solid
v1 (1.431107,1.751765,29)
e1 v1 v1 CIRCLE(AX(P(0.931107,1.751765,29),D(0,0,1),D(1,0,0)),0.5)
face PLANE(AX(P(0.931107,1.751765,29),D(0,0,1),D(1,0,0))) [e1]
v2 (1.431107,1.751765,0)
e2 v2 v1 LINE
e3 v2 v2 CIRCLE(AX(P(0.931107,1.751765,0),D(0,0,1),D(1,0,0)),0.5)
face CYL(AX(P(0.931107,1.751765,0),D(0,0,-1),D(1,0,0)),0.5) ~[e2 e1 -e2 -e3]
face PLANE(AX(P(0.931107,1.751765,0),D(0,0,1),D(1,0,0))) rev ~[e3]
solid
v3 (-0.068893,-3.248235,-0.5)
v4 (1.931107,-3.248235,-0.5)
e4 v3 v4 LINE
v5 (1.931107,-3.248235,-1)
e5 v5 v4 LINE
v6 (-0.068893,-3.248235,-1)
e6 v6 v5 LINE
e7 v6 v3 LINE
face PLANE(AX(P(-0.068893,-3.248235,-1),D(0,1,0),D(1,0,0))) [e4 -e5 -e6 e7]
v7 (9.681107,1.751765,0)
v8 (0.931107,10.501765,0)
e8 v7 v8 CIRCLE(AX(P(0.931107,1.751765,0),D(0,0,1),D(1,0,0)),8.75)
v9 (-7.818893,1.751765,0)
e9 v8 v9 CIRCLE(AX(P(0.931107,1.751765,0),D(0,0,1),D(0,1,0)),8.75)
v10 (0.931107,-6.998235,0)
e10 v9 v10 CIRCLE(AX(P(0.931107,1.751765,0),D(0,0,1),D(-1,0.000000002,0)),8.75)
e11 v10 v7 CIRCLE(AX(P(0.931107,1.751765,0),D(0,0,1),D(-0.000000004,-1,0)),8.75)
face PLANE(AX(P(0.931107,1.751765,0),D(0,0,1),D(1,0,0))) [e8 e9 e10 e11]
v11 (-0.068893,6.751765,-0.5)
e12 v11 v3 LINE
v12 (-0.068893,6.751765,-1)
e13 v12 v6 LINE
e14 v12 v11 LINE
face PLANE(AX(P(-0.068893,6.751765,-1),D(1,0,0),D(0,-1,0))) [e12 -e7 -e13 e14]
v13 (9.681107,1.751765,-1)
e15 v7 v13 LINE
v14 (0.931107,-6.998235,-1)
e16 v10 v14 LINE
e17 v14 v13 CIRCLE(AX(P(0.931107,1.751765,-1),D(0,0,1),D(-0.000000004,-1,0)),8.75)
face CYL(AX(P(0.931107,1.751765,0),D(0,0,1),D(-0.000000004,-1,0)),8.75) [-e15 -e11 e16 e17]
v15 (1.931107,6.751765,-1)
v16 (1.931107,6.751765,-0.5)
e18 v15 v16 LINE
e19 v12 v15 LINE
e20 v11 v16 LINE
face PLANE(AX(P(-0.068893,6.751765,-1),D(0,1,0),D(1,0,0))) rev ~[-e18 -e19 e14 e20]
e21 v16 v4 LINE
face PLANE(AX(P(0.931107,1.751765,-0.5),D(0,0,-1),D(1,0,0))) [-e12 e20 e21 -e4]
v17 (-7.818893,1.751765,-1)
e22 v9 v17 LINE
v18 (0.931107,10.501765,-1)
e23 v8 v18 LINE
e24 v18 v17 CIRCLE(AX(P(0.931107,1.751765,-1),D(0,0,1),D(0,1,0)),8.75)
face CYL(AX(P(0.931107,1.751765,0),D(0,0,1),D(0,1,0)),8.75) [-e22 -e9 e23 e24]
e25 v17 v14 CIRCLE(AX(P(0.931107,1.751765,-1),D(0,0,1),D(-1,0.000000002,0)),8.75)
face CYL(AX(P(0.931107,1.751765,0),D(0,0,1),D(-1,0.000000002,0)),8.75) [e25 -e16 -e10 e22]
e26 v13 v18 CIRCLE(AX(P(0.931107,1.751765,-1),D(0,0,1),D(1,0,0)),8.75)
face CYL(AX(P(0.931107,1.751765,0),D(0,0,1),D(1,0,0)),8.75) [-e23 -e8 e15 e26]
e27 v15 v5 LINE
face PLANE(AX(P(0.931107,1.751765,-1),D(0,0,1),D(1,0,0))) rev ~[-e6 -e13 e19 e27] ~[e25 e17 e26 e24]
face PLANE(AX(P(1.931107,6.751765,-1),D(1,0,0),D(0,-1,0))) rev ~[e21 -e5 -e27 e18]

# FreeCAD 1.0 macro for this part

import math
import FreeCAD as App
import Part
import Sketcher

V = App.Vector
Q = App.Units.Quantity


def add_polygon(sketch, points):
    """Adds a closed chain of lines whose ends are joined by coincident constraints."""
    first, n = sketch.GeometryCount, len(points)
    for a, b in zip(points, points[1:] + points[:1]):
        sketch.addGeometry(Part.LineSegment(App.Vector(*a, 0), App.Vector(*b, 0)), False)
    for i in range(n):
        sketch.addConstraint(Sketcher.Constraint("Coincident", first + i, 2, first + (i + 1) % n, 1))

doc = App.newDocument("Part")
body = doc.addObject("PartDesign::Body", "Body")

sketch1 = body.newObject("Sketcher::SketchObject", "Sketch")
sketch1.AttachmentSupport = (doc.getObject("XY_Plane"), [""])
sketch1.MapMode = "FlatFace"
sketch1.addGeometry([
    Part.ArcOfCircle(Part.Circle(V(0.931107, 1.751765, 0), V(0, 0, 1), 8.75), math.radians(0), math.radians(90)),
    Part.ArcOfCircle(Part.Circle(V(0.931107, 1.751765, 0), V(0, 0, 1), 8.75), math.radians(90), math.radians(180)),
    Part.ArcOfCircle(Part.Circle(V(0.931107, 1.751765, 0), V(0, 0, 1), 8.75), math.radians(180), math.radians(270)),
    Part.ArcOfCircle(Part.Circle(V(0.931107, 1.751765, 0), V(0, 0, 1), 8.75), math.radians(-90), math.radians(0)),
], False)
sketch1.addConstraint([
    Sketcher.Constraint("Tangent", 0, 2, 1, 1),
    Sketcher.Constraint("Tangent", 1, 2, 2, 1),
    Sketcher.Constraint("Tangent", 2, 2, 3, 1),
    Sketcher.Constraint("Tangent", 3, 2, 0, 1),
    Sketcher.Constraint("Equal", 0, 1),
    Sketcher.Constraint("Horizontal", 3, 3, 1, 2),
    Sketcher.Constraint("Horizontal", 1, 2, 3, 2),
    Sketcher.Constraint("Vertical", 3, 3, 0, 2),
    Sketcher.Constraint("Vertical", 0, 2, 2, 2),
    Sketcher.Constraint("Radius", 0, Q("8.75 mm")),
    Sketcher.Constraint("DistanceX", -1, 1, 0, 3, Q("0.931107 mm")),
    Sketcher.Constraint("DistanceY", -1, 1, 0, 3, Q("1.751765 mm")),
])
pad1 = body.newObject("PartDesign::Pad", "Pad")
pad1.Profile = sketch1
pad1.Length = 1
pad1.Reversed = True

sketch2 = body.newObject("Sketcher::SketchObject", "Sketch001")
sketch2.AttachmentSupport = (doc.getObject("XY_Plane"), [""])
sketch2.MapMode = "FlatFace"
sketch2.AttachmentOffset = App.Placement(V(0, 0, -1), App.Rotation())
add_polygon(sketch2, [(-0.068893, -3.248235), (-0.068893, 6.751765), (1.931107, 6.751765), (1.931107, -3.248235)])
sketch2.addConstraint([
    Sketcher.Constraint("Vertical", 0),
    Sketcher.Constraint("Horizontal", 1),
    Sketcher.Constraint("Vertical", 2),
    Sketcher.Constraint("Horizontal", 3),
    Sketcher.Constraint("DistanceX", 1, 1, 1, 2, Q("2 mm")),
    Sketcher.Constraint("DistanceY", 0, 1, 0, 2, Q("10 mm")),
    Sketcher.Constraint("DistanceX", 0, 2, -1, 1, Q("0.068893 mm")),
    Sketcher.Constraint("DistanceY", -1, 1, 0, 2, Q("6.751765 mm")),
])
pocket1 = body.newObject("PartDesign::Pocket", "Pocket")
pocket1.Profile = sketch2
pocket1.Length = 0.5
pocket1.Reversed = True
body2 = doc.addObject("PartDesign::Body", "Body001")

sketch3 = body2.newObject("Sketcher::SketchObject", "Sketch002")
sketch3.AttachmentSupport = (doc.getObject("XY_Plane001"), [""])
sketch3.MapMode = "FlatFace"
sketch3.addGeometry(Part.Circle(V(0.931107, 1.751765, 0), V(0, 0, 1), 0.5), False)
sketch3.addConstraint([
    Sketcher.Constraint("Diameter", 0, Q("1 mm")),
    Sketcher.Constraint("DistanceX", -1, 1, 0, 3, Q("0.931107 mm")),
    Sketcher.Constraint("DistanceY", -1, 1, 0, 3, Q("1.751765 mm")),
])
pad2 = body2.newObject("PartDesign::Pad", "Pad001")
pad2.Profile = sketch3
pad2.Length = 29

doc.recompute()
